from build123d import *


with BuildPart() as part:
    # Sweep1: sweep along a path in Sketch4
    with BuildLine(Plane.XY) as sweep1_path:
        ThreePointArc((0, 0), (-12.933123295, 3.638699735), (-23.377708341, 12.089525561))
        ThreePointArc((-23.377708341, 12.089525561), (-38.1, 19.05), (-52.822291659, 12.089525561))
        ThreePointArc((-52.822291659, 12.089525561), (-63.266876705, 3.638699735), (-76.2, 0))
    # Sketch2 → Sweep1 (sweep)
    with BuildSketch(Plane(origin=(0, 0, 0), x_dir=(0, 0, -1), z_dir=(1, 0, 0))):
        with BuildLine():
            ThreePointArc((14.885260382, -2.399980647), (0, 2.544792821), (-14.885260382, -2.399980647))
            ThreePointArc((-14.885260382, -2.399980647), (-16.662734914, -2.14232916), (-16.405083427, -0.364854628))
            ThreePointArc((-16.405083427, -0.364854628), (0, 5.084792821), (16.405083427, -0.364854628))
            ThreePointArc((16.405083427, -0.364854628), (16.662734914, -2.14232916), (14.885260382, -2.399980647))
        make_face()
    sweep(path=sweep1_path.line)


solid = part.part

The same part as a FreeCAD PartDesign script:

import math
import FreeCAD as App
import Part
import Sketcher
from FreeCAD import Vector
Q = App.Units.Quantity

doc = App.newDocument("Part")
params = doc.addObject("Spreadsheet::Sheet", "Params")
for row, (alias, value) in enumerate([
    ("sketch1_radius", "0.05 in"),
    ("sketch2_radius", "0.75 in"),
], start=1):
    params.set(f"A{row}", alias)
    params.set(f"B{row}", "=" + value)
    params.setAlias(f"B{row}", alias)

body = doc.addObject("PartDesign::Body", "Body")

sketch1 = body.newObject("Sketcher::SketchObject", "Sketch")
sketch1.AttachmentSupport = (doc.getObject("YZ_Plane"), [""])
sketch1.MapMode = "FlatFace"
sketch1.addGeometry(Part.ArcOfCircle(Part.Circle(Vector(-22.3, 0, 0), Vector(0, 0, 1), 24.9), math.radians(-37), math.radians(37)), False)
sketch1.addGeometry(Part.ArcOfCircle(Part.Circle(Vector(-1.4, -15.6, 0), Vector(0, 0, 1), 1.3), math.radians(143), math.radians(323)), False)
sketch1.addGeometry(Part.ArcOfCircle(Part.Circle(Vector(-22.3, 0, 0), Vector(0, 0, 1), 27.4), math.radians(-37), math.radians(37)), False)
sketch1.addGeometry(Part.ArcOfCircle(Part.Circle(Vector(-1.4, 15.6, 0), Vector(0, 0, 1), 1.3), math.radians(37), math.radians(217)), False)
sketch1.addConstraint(Sketcher.Constraint("Tangent", 0, 1, 1, 1))
sketch1.addConstraint(Sketcher.Constraint("Tangent", 1, 2, 2, 1))
sketch1.addConstraint(Sketcher.Constraint("Tangent", 2, 2, 3, 1))
sketch1.addConstraint(Sketcher.Constraint("Tangent", 3, 2, 0, 2))
sketch1.addConstraint(Sketcher.Constraint("Coincident", 2, 3, 0, 3))
sketch1.addConstraint(Sketcher.Constraint("Symmetric", 1, 3, 3, 3, -1))
sketch1.addConstraint(Sketcher.Constraint("Radius", 1, Q("0.05 in")))
sketch1.addConstraint(Sketcher.Constraint("Radius", 0, 24.87695))
sketch1.addConstraint(Sketcher.Constraint("DistanceY", 1, 3, -1, 1, 15.645172))
sketch1.addConstraint(Sketcher.Constraint("DistanceX", 0, 1, -1, 1, 2.399981))
sketch1.setExpression("Constraints[6]", "Params.sketch1_radius")

sketch2 = body.newObject("Sketcher::SketchObject", "Sketch001")
sketch2.AttachmentSupport = (doc.getObject("XY_Plane"), [""])
sketch2.MapMode = "FlatFace"
sketch2.addGeometry(Part.ArcOfCircle(Part.Circle(Vector(2, 33, 0), Vector(0, 0, 1), 33), math.radians(-141), math.radians(-94)), False)
sketch2.addGeometry(Part.ArcOfCircle(Part.Circle(Vector(-38, 0, 0), Vector(0, 0, 1), 19), math.radians(39), math.radians(141)), False)
sketch2.addGeometry(Part.ArcOfCircle(Part.Circle(Vector(-79, 33, 0), Vector(0, 0, 1), 33), math.radians(-86), math.radians(-39)), False)
sketch2.addConstraint(Sketcher.Constraint("Tangent", 0, 1, 1, 1))
sketch2.addConstraint(Sketcher.Constraint("Tangent", 1, 2, 2, 2))
sketch2.addConstraint(Sketcher.Constraint("Coincident", 0, 2, -1, 1))
sketch2.addConstraint(Sketcher.Constraint("Equal", 0, 2))
sketch2.addConstraint(Sketcher.Constraint("PointOnObject", 1, 3, -1))
sketch2.addConstraint(Sketcher.Constraint("PointOnObject", 2, 1, -1))
sketch2.addConstraint(Sketcher.Constraint("Horizontal", 0, 3, 2, 3))
sketch2.addConstraint(Sketcher.Constraint("Radius", 1, Q("0.75 in")))
sketch2.addConstraint(Sketcher.Constraint("DistanceX", 2, 1, -1, 1, Q("3 in")))
sketch2.addConstraint(Sketcher.Constraint("Radius", 0, 33.318982))
sketch2.setExpression("Constraints[7]", "Params.sketch2_radius")
doc.recompute()

additivepipe = body.newObject("PartDesign::AdditivePipe", "AdditivePipe")
additivepipe.Profile = sketch1
additivepipe.Spine = (sketch2, ["Edge1", "Edge2", "Edge3"])

doc.recompute()
